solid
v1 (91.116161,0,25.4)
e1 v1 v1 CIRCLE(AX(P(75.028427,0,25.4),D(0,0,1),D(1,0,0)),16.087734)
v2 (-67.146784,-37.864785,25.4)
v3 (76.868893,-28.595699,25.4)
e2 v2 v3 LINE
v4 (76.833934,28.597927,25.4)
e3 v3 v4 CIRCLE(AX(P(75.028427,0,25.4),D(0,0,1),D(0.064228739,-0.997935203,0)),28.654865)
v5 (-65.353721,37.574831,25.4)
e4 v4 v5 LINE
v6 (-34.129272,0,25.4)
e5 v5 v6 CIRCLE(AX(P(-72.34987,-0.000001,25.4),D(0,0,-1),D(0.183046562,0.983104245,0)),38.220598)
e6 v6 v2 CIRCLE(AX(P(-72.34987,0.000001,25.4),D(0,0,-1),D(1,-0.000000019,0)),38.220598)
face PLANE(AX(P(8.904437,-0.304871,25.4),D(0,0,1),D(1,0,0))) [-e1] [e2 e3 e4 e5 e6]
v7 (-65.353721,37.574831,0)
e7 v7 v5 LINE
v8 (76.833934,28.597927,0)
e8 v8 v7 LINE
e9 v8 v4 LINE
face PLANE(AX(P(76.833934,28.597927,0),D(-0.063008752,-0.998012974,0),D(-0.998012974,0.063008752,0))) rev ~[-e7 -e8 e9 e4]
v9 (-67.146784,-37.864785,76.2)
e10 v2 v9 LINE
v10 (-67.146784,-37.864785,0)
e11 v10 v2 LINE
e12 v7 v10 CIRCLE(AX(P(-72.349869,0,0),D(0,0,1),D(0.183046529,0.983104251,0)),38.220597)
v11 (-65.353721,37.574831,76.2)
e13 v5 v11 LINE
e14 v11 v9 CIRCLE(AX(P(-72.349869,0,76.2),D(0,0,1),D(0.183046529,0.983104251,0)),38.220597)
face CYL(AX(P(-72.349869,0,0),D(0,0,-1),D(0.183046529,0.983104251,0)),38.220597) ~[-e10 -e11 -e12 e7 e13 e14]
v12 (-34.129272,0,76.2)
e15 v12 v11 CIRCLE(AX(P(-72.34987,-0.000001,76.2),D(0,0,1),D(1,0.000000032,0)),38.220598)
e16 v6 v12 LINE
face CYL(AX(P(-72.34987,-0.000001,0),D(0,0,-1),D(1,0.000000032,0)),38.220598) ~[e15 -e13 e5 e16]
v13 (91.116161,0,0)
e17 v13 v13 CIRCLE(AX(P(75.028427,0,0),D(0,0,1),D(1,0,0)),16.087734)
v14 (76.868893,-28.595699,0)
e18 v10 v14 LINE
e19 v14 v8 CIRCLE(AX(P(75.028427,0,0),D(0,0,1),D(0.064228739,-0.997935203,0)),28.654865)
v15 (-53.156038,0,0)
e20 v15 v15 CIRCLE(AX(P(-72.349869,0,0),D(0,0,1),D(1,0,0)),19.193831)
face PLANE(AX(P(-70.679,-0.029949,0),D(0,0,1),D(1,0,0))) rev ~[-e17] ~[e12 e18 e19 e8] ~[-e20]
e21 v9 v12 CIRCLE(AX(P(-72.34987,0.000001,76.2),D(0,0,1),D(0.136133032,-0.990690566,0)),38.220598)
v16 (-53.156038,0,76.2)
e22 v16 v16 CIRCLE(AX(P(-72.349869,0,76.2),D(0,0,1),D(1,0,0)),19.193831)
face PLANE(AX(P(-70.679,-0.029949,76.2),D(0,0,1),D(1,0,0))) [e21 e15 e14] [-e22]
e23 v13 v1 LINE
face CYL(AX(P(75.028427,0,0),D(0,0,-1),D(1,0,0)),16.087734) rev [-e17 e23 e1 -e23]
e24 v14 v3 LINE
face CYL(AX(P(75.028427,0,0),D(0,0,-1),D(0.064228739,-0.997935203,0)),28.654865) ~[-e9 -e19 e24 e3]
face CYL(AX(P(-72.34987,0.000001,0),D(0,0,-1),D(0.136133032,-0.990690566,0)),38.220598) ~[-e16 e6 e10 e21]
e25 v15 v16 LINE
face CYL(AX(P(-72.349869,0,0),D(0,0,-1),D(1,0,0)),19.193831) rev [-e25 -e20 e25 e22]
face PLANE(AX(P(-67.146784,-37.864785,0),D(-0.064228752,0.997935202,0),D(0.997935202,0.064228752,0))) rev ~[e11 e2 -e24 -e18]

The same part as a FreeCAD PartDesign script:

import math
import FreeCAD as App
import Part
import Sketcher

V = App.Vector
Q = App.Units.Quantity

doc = App.newDocument("Part")
body = doc.addObject("PartDesign::Body", "Body")

# Sketch on XY plane
sketch1 = doc.addObject("Sketcher::SketchObject", "Sketch")
body.addObject(sketch1)
sketch1.AttachmentSupport = (doc.XY_Plane, [""])
sketch1.MapMode = "FlatFace"
sketch1.addGeometry([
    Part.ArcOfCircle(Part.Circle(V(-72, 0, 0), V(0, 0, 1), 38), math.radians(0), math.radians(79)),  # 0
    Part.ArcOfCircle(Part.Circle(V(-72, 0, 0), V(0, 0, 1), 38), math.radians(-82), math.radians(0)),  # 1
    Part.LineSegment(V(-67, -38, 0), V(77, -29, 0)),  # 2
    Part.ArcOfCircle(Part.Circle(V(75, 0, 0), V(0, 0, 1), 29), math.radians(-86), math.radians(86)),  # 3
    Part.LineSegment(V(77, 29, 0), V(-65, 38, 0)),  # 4
    Part.Circle(V(75, 0, 0), V(0, 0, 1), 16),  # 5
], False)
sketch1.addConstraint([
    Sketcher.Constraint("Tangent", 0, 1, 1, 2),
    Sketcher.Constraint("Coincident", 1, 1, 2, 1),
    Sketcher.Constraint("Tangent", 2, 2, 3, 1),
    Sketcher.Constraint("Tangent", 3, 2, 4, 1),
    Sketcher.Constraint("Coincident", 4, 2, 0, 2),
    Sketcher.Constraint("Coincident", 5, 3, 3, 3),
    Sketcher.Constraint("Equal", 0, 1),
    Sketcher.Constraint("PointOnObject", 0, 3, -1),
    Sketcher.Constraint("PointOnObject", 3, 3, -1),
    Sketcher.Constraint("PointOnObject", 0, 1, -1),
    Sketcher.Constraint("Radius", 0, 38.220598),
    Sketcher.Constraint("Diameter", 5, 32.175468),
    Sketcher.Constraint("Radius", 3, 28.654865),
    Sketcher.Constraint("DistanceX", 0, 1, 5, 3, 109.157699),
    Sketcher.Constraint("Distance", 4, 142.470748),
    Sketcher.Constraint("DistanceX", 0, 3, -1, 1, 72.34987),
    Sketcher.Constraint("DistanceX", 1, 1, 5, 3, 142.175211),
])
pad1 = doc.addObject("PartDesign::Pad", "Pad")
body.addObject(pad1)
pad1.Profile = sketch1
pad1.Length = Q("1 in")

# Sketch on XY plane
sketch2 = doc.addObject("Sketcher::SketchObject", "Sketch001")
body.addObject(sketch2)
sketch2.AttachmentSupport = (doc.XY_Plane, [""])
sketch2.MapMode = "FlatFace"
sketch2.addGeometry([
    Part.ArcOfCircle(Part.Circle(V(-72, 0, 0), V(0, 0, 1), 38), math.radians(-82), math.radians(0)),
    Part.ArcOfCircle(Part.Circle(V(-72, 0, 0), V(0, 0, 1), 38), math.radians(0), math.radians(79)),
    Part.ArcOfCircle(Part.Circle(V(-72, 0, 0), V(0, 0, 1), 38), math.radians(79), math.radians(278)),
    Part.Circle(V(-72, 0, 0), V(0, 0, 1), 19),
], False)
sketch2.addConstraint([
    Sketcher.Constraint("Tangent", 0, 2, 1, 1),
    Sketcher.Constraint("Tangent", 1, 2, 2, 1),
    Sketcher.Constraint("Tangent", 2, 2, 0, 1),
    Sketcher.Constraint("Coincident", 3, 3, 0, 3),
    Sketcher.Constraint("PointOnObject", 0, 3, -1),
    Sketcher.Constraint("PointOnObject", 0, 2, -1),
    Sketcher.Constraint("Radius", 1, 38.220598),
    Sketcher.Constraint("Diameter", 3, 38.387662),
    Sketcher.Constraint("DistanceX", 0, 3, -1, 1, 72.34987),
    Sketcher.Constraint("DistanceX", 1, 2, -1, 1, 65.353721),
    Sketcher.Constraint("DistanceX", 2, 2, 0, 2, 33.017512),
])
pad2 = doc.addObject("PartDesign::Pad", "Pad001")
body.addObject(pad2)
pad2.Profile = sketch2
pad2.Length = Q("3 in")

doc.recompute()
